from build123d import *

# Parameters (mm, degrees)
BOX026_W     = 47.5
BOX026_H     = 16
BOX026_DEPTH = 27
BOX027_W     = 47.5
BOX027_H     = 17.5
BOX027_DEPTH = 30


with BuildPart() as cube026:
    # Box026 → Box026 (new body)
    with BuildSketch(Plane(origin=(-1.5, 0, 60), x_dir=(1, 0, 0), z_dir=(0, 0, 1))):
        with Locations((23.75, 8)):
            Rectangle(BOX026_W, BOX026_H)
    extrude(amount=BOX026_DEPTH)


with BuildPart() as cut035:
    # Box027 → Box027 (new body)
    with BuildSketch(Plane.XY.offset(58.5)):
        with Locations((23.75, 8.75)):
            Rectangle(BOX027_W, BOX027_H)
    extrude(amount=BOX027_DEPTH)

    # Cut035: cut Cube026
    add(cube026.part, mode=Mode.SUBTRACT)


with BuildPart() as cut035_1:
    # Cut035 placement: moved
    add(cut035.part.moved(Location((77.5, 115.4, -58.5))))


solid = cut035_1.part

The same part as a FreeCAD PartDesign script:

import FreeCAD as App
import Part
import Sketcher

V = App.Vector
Q = App.Units.Quantity

doc = App.newDocument("Part")
body = doc.addObject("PartDesign::Body", "Body")

# Sketch on XY plane
sketch1 = doc.addObject("Sketcher::SketchObject", "Sketch")
body.addObject(sketch1)
sketch1.AttachmentSupport = (doc.XY_Plane, [""])
sketch1.MapMode = "FlatFace"
sketch1.AttachmentOffset = App.Placement(V(0, 0, 60), App.Rotation())
sketch1.addGeometry([
    Part.LineSegment(V(-1.5, 16, 0), V(-1.5, 0, 0)),
    Part.LineSegment(V(-1.5, 0, 0), V(46, 0, 0)),
    Part.LineSegment(V(46, 0, 0), V(46, 16, 0)),
    Part.LineSegment(V(46, 16, 0), V(-1.5, 16, 0)),
], False)
sketch1.addConstraint([
    Sketcher.Constraint("Coincident", 0, 2, 1, 1),
    Sketcher.Constraint("Coincident", 1, 2, 2, 1),
    Sketcher.Constraint("Coincident", 2, 2, 3, 1),
    Sketcher.Constraint("Coincident", 3, 2, 0, 1),
    Sketcher.Constraint("Vertical", 0),
    Sketcher.Constraint("Horizontal", 1),
    Sketcher.Constraint("Vertical", 2),
    Sketcher.Constraint("Horizontal", 3),
    Sketcher.Constraint("PointOnObject", 0, 2, -1),
    Sketcher.Constraint("DistanceY", 0, 2, 0, 1, Q("16 mm")),
    Sketcher.Constraint("DistanceX", 1, 1, 1, 2, Q("47.5 mm")),
    Sketcher.Constraint("DistanceX", -1, 1, 1, 2, Q("46 mm")),
])
pad1 = doc.addObject("PartDesign::Pad", "Pad")
body.addObject(pad1)
pad1.Profile = sketch1
pad1.Length = 27
body2 = doc.addObject("PartDesign::Body", "Body001")

# Sketch on XY plane
sketch2 = doc.addObject("Sketcher::SketchObject", "Sketch001")
body2.addObject(sketch2)
sketch2.AttachmentSupport = (doc.getObject("XY_Plane001"), [""])
sketch2.MapMode = "FlatFace"
sketch2.AttachmentOffset = App.Placement(V(0, 0, 58.5), App.Rotation())
sketch2.addGeometry([
    Part.LineSegment(V(0, 17.5, 0), V(0, 0, 0)),
    Part.LineSegment(V(0, 0, 0), V(47.5, 0, 0)),
    Part.LineSegment(V(47.5, 0, 0), V(47.5, 17.5, 0)),
    Part.LineSegment(V(47.5, 17.5, 0), V(0, 17.5, 0)),
], False)
sketch2.addConstraint([
    Sketcher.Constraint("Coincident", 0, 2, 1, 1),
    Sketcher.Constraint("Coincident", 1, 2, 2, 1),
    Sketcher.Constraint("Coincident", 2, 2, 3, 1),
    Sketcher.Constraint("Coincident", 3, 2, 0, 1),
    Sketcher.Constraint("Vertical", 0),
    Sketcher.Constraint("Horizontal", 1),
    Sketcher.Constraint("Vertical", 2),
    Sketcher.Constraint("Horizontal", 3),
    Sketcher.Constraint("Coincident", 0, 2, -1, 1),
    Sketcher.Constraint("DistanceX", 1, 1, 1, 2, Q("47.5 mm")),
    Sketcher.Constraint("DistanceY", 0, 2, 0, 1, Q("17.5 mm")),
])
pad2 = doc.addObject("PartDesign::Pad", "Pad001")
body2.addObject(pad2)
pad2.Profile = sketch2
pad2.Length = 30
doc.recompute()

boolean = doc.addObject("PartDesign::Boolean", "Boolean")
body2.addObject(boolean)
boolean.Type = "Cut"
boolean.addObjects([body])
body3 = doc.addObject("PartDesign::Body", "Body002")
doc.recompute()

body2.Placement = App.Placement(V(77.5, 115.4, -58.5), App.Rotation(V(0, 0, 1), 0))
boolean2 = doc.addObject("PartDesign::Boolean", "Boolean001")
body3.addObject(boolean2)
boolean2.Type = "Fuse"
boolean2.addObjects([body2])

doc.recompute()
